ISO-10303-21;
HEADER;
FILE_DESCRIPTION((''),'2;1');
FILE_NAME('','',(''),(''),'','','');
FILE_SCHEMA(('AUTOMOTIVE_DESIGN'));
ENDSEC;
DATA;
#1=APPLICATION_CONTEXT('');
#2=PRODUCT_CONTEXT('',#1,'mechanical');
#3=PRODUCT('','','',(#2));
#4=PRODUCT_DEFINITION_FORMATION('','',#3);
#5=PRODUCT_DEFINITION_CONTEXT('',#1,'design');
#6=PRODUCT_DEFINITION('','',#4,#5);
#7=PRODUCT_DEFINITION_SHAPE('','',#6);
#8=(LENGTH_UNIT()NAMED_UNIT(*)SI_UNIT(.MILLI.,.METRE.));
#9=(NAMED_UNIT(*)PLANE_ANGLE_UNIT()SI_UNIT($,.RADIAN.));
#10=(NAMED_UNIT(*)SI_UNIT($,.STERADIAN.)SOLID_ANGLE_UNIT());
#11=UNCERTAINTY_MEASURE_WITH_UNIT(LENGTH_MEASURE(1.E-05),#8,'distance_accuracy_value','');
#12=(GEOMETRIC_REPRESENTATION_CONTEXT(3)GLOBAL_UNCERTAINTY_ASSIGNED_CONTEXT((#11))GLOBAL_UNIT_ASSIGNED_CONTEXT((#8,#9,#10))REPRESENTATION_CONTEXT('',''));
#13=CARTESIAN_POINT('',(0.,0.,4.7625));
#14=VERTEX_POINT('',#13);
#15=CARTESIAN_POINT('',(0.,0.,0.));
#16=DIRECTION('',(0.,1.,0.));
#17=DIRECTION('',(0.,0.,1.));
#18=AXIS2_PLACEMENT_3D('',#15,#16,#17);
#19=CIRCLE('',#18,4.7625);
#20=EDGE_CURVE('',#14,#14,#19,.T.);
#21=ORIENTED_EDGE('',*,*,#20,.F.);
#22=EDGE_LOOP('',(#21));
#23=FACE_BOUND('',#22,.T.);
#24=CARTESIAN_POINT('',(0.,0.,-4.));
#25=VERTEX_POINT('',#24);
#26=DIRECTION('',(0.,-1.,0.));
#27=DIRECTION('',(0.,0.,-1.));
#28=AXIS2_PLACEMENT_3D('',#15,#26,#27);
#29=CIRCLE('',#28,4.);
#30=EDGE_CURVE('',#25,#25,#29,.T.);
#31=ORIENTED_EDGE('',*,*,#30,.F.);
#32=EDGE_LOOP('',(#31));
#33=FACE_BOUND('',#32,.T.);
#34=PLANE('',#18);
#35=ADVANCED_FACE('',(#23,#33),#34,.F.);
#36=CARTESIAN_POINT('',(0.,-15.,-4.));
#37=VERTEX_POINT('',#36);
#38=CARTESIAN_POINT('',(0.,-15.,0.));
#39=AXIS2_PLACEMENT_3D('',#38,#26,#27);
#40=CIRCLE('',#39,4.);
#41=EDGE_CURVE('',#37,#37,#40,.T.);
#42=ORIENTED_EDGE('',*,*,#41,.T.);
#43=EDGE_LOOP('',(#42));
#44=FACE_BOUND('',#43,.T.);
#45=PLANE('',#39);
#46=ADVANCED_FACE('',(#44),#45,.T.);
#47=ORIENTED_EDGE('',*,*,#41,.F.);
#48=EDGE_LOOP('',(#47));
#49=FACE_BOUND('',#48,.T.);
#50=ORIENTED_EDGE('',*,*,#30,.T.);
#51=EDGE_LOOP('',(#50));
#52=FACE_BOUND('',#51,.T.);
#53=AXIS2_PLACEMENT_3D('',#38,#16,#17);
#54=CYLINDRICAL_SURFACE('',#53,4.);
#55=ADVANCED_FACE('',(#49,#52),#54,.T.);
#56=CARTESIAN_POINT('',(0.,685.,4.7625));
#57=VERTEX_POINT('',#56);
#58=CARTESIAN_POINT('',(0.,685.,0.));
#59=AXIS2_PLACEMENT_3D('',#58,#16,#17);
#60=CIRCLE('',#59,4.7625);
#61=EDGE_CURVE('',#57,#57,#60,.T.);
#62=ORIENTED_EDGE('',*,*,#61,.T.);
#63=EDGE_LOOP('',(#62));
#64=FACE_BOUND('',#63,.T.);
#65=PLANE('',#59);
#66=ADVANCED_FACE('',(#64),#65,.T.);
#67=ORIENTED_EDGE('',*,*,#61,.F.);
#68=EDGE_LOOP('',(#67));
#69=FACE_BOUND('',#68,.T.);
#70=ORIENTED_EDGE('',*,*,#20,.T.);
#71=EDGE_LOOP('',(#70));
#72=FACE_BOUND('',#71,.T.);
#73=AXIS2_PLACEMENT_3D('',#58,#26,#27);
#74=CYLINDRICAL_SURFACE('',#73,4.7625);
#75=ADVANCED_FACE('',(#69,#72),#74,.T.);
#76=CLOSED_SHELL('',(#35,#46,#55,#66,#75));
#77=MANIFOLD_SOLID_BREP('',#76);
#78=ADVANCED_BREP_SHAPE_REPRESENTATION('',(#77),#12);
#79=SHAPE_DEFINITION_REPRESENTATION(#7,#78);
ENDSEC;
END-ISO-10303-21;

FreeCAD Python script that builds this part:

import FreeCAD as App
import Part
import Sketcher

doc = App.newDocument("Part")
body = doc.addObject("PartDesign::Body", "Body")

# Sketch on XZ plane
sketch1 = body.newObject("Sketcher::SketchObject", "Sketch")
sketch1.AttachmentSupport = (doc.getObject("XZ_Plane"), [""])
sketch1.MapMode = "FlatFace"
sketch1.addGeometry(Part.Circle(App.Vector(0, 0, 0), App.Vector(0, 0, 1), 4.8), False)
sketch1.addConstraint(Sketcher.Constraint("Coincident", 0, 3, -1, 1))
sketch1.addConstraint(Sketcher.Constraint("Diameter", 0, 9.525))
pad1 = body.newObject("PartDesign::Pad", "Pad")
pad1.Profile = sketch1
pad1.Length = 685
pad1.Reversed = True

# Sketch on XZ plane
sketch2 = body.newObject("Sketcher::SketchObject", "Sketch001")
sketch2.AttachmentSupport = (doc.getObject("XZ_Plane"), [""])
sketch2.MapMode = "FlatFace"
sketch2.addGeometry(Part.Circle(App.Vector(0, 0, 0), App.Vector(0, 0, 1), 4), False)
sketch2.addConstraint(Sketcher.Constraint("Coincident", 0, 3, -1, 1))
sketch2.addConstraint(Sketcher.Constraint("Diameter", 0, 8.0))
pad2 = body.newObject("PartDesign::Pad", "Pad001")
pad2.Profile = sketch2
pad2.Length = 15

doc.recompute()
